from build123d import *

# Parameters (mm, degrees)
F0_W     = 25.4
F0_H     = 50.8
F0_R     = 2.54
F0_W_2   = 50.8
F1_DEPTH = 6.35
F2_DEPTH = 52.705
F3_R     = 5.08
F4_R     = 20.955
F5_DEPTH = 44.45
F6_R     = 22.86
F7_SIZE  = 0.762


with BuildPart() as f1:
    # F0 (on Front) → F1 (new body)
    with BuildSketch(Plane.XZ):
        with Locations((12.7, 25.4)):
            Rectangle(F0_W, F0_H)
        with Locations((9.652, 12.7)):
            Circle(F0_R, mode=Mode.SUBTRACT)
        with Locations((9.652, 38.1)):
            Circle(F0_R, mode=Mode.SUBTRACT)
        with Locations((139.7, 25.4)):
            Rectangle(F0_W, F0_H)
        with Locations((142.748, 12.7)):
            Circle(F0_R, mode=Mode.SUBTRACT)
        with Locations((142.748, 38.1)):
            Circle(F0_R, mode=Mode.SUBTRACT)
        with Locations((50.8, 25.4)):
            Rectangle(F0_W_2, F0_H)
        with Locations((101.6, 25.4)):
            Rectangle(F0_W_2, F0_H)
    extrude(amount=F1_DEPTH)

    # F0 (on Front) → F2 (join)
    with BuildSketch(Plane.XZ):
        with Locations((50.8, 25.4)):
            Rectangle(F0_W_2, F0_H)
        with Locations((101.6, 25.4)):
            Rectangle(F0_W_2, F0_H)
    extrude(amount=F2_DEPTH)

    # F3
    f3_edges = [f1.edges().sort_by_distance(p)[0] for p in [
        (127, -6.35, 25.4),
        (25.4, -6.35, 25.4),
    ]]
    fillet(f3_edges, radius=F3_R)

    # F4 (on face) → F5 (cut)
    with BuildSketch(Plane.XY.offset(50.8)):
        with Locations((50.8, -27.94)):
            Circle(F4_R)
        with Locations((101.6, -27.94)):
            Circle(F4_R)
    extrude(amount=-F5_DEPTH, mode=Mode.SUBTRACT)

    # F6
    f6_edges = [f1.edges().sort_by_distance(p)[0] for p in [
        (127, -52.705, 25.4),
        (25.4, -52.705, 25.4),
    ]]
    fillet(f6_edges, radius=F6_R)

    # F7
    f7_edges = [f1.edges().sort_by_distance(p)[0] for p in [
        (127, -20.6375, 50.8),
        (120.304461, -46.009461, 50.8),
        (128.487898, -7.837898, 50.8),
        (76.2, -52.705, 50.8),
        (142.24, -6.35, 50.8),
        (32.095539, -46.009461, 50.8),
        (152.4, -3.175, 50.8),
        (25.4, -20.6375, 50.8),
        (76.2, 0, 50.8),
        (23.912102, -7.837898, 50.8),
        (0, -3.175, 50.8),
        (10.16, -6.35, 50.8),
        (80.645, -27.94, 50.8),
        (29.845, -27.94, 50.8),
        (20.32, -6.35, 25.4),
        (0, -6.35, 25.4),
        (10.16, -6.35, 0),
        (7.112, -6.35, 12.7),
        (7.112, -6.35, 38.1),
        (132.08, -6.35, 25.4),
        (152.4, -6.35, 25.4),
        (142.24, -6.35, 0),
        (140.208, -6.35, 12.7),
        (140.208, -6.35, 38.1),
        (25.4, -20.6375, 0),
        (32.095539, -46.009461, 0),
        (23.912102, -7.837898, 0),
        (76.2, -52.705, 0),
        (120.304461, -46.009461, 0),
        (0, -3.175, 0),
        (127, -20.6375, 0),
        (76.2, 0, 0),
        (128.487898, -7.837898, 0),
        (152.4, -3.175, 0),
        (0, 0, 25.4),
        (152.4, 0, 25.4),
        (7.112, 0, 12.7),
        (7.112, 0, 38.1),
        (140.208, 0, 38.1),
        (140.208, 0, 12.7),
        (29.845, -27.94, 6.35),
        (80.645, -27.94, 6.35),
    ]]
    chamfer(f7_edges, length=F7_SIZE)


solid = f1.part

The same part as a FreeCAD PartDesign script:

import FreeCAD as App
import Part
import Sketcher
Q = App.Units.Quantity


def edges_at(feature, points):
    """Names of the edges that pass closest to the given points."""
    edges = feature.Shape.Edges
    near = lambda p: min(range(len(edges)), key=lambda i: edges[i].distToShape(Part.Vertex(*p))[0])
    return sorted({f"Edge{near(p) + 1}" for p in points})

doc = App.newDocument("Part")
body = doc.addObject("PartDesign::Body", "Body")

# Sketch on XZ plane
sketch1 = body.newObject("Sketcher::SketchObject", "Sketch")
sketch1.AttachmentSupport = (doc.getObject("XZ_Plane"), [""])
sketch1.MapMode = "FlatFace"
sketch1.addGeometry([
    Part.LineSegment(App.Vector(0, 50.8, 0), App.Vector(0, 0, 0)),  # 0
    Part.LineSegment(App.Vector(0, 0, 0), App.Vector(152.4, 0, 0)),  # 1
    Part.LineSegment(App.Vector(152.4, 0, 0), App.Vector(152.4, 50.8, 0)),  # 2
    Part.LineSegment(App.Vector(152.4, 50.8, 0), App.Vector(0, 50.8, 0)),  # 3
    Part.Circle(App.Vector(9.7, 12.7, 0), App.Vector(0, 0, 1), 2.5),  # 4
    Part.Circle(App.Vector(9.7, 38.1, 0), App.Vector(0, 0, 1), 2.5),  # 5
    Part.Circle(App.Vector(142.7, 38.1, 0), App.Vector(0, 0, 1), 2.5),  # 6
    Part.Circle(App.Vector(142.7, 12.7, 0), App.Vector(0, 0, 1), 2.5),  # 7
], False)
sketch1.addConstraint([
    Sketcher.Constraint("Coincident", 0, 2, 1, 1),
    Sketcher.Constraint("Coincident", 1, 2, 2, 1),
    Sketcher.Constraint("Coincident", 2, 2, 3, 1),
    Sketcher.Constraint("Coincident", 3, 2, 0, 1),
    Sketcher.Constraint("Vertical", 0),
    Sketcher.Constraint("Horizontal", 1),
    Sketcher.Constraint("Vertical", 2),
    Sketcher.Constraint("Horizontal", 3),
    Sketcher.Constraint("Coincident", 0, 2, -1, 1),
    Sketcher.Constraint("Equal", 4, 5),
    Sketcher.Constraint("Equal", 5, 6),
    Sketcher.Constraint("Equal", 6, 7),
    Sketcher.Constraint("Horizontal", 5, 3, 6, 3),
    Sketcher.Constraint("Horizontal", 4, 3, 7, 3),
    Sketcher.Constraint("Vertical", 4, 3, 5, 3),
    Sketcher.Constraint("Vertical", 6, 3, 7, 3),
    Sketcher.Constraint("Diameter", 4, Q("0.2 in")),
    Sketcher.Constraint("DistanceX", 1, 1, 1, 2, Q("6 in")),
    Sketcher.Constraint("DistanceY", 0, 2, 0, 1, Q("2 in")),
    Sketcher.Constraint("DistanceY", 4, 3, 5, 3, Q("1 in")),
    Sketcher.Constraint("DistanceY", -1, 1, 4, 3, Q("0.5 in")),
    Sketcher.Constraint("DistanceX", -1, 1, 4, 3, Q("0.38 in")),
    Sketcher.Constraint("DistanceX", -1, 1, 6, 3, Q("5.62 in")),
])
pad1 = body.newObject("PartDesign::Pad", "Pad")
pad1.Profile = sketch1
pad1.Length = Q("0.25 in")

# Sketch on XZ plane
sketch2 = body.newObject("Sketcher::SketchObject", "Sketch001")
sketch2.AttachmentSupport = (doc.getObject("XZ_Plane"), [""])
sketch2.MapMode = "FlatFace"
sketch2.addGeometry([
    Part.LineSegment(App.Vector(25, 51, 0), App.Vector(25, 0, 0)),
    Part.LineSegment(App.Vector(25, 0, 0), App.Vector(127, 0, 0)),
    Part.LineSegment(App.Vector(127, 0, 0), App.Vector(127, 51, 0)),
    Part.LineSegment(App.Vector(127, 51, 0), App.Vector(25, 51, 0)),
], False)
sketch2.addConstraint([
    Sketcher.Constraint("Coincident", 0, 2, 1, 1),
    Sketcher.Constraint("Coincident", 1, 2, 2, 1),
    Sketcher.Constraint("Coincident", 2, 2, 3, 1),
    Sketcher.Constraint("Coincident", 3, 2, 0, 1),
    Sketcher.Constraint("Vertical", 0),
    Sketcher.Constraint("Horizontal", 1),
    Sketcher.Constraint("Vertical", 2),
    Sketcher.Constraint("Horizontal", 3),
    Sketcher.Constraint("PointOnObject", 0, 2, -1),
    Sketcher.Constraint("DistanceX", 1, 1, 1, 2, Q("4 in")),
    Sketcher.Constraint("DistanceY", 0, 2, 0, 1, Q("2 in")),
    Sketcher.Constraint("DistanceX", -1, 1, 0, 2, Q("1 in")),
])
pad2 = body.newObject("PartDesign::Pad", "Pad001")
pad2.Profile = sketch2
pad2.Length = Q("2.075 in")
doc.recompute()

fillet = body.newObject("PartDesign::Fillet", "Fillet")
fillet.Base = (pad2, edges_at(pad2, [(127, -6.35, 25.4), (25.4, -6.35, 25.4)]))
fillet.Radius = Q("0.2 in")

# Sketch on XY plane
sketch3 = body.newObject("Sketcher::SketchObject", "Sketch002")
sketch3.AttachmentSupport = (doc.getObject("XY_Plane"), [""])
sketch3.MapMode = "FlatFace"
sketch3.AttachmentOffset = App.Placement(App.Vector(0, 0, 2 * 25.4), App.Rotation())
sketch3.addGeometry([
    Part.Circle(App.Vector(51, -28, 0), App.Vector(0, 0, 1), 21),
    Part.Circle(App.Vector(102, -28, 0), App.Vector(0, 0, 1), 21),
], False)
sketch3.addConstraint([
    Sketcher.Constraint("Equal", 0, 1),
    Sketcher.Constraint("Horizontal", 0, 3, 1, 3),
    Sketcher.Constraint("Diameter", 0, Q("1.65 in")),
    Sketcher.Constraint("DistanceX", -1, 1, 0, 3, Q("2 in")),
    Sketcher.Constraint("DistanceX", -1, 1, 1, 3, Q("4 in")),
    Sketcher.Constraint("DistanceY", 0, 3, -1, 1, Q("1.1 in")),
])
pocket1 = body.newObject("PartDesign::Pocket", "Pocket")
pocket1.Profile = sketch3
pocket1.Length = Q("1.75 in")
doc.recompute()

fillet2 = body.newObject("PartDesign::Fillet", "Fillet001")
fillet2.Base = (pocket1, edges_at(pocket1, [(127, -52.705, 25.4), (25.4, -52.705, 25.4)]))
fillet2.Radius = Q("0.9 in")
doc.recompute()

chamfer = body.newObject("PartDesign::Chamfer", "Chamfer")
chamfer.Base = (fillet2, ["Edge1"])
chamfer.UseAllEdges = True
chamfer.Size = Q("0.03 in")

doc.recompute()
